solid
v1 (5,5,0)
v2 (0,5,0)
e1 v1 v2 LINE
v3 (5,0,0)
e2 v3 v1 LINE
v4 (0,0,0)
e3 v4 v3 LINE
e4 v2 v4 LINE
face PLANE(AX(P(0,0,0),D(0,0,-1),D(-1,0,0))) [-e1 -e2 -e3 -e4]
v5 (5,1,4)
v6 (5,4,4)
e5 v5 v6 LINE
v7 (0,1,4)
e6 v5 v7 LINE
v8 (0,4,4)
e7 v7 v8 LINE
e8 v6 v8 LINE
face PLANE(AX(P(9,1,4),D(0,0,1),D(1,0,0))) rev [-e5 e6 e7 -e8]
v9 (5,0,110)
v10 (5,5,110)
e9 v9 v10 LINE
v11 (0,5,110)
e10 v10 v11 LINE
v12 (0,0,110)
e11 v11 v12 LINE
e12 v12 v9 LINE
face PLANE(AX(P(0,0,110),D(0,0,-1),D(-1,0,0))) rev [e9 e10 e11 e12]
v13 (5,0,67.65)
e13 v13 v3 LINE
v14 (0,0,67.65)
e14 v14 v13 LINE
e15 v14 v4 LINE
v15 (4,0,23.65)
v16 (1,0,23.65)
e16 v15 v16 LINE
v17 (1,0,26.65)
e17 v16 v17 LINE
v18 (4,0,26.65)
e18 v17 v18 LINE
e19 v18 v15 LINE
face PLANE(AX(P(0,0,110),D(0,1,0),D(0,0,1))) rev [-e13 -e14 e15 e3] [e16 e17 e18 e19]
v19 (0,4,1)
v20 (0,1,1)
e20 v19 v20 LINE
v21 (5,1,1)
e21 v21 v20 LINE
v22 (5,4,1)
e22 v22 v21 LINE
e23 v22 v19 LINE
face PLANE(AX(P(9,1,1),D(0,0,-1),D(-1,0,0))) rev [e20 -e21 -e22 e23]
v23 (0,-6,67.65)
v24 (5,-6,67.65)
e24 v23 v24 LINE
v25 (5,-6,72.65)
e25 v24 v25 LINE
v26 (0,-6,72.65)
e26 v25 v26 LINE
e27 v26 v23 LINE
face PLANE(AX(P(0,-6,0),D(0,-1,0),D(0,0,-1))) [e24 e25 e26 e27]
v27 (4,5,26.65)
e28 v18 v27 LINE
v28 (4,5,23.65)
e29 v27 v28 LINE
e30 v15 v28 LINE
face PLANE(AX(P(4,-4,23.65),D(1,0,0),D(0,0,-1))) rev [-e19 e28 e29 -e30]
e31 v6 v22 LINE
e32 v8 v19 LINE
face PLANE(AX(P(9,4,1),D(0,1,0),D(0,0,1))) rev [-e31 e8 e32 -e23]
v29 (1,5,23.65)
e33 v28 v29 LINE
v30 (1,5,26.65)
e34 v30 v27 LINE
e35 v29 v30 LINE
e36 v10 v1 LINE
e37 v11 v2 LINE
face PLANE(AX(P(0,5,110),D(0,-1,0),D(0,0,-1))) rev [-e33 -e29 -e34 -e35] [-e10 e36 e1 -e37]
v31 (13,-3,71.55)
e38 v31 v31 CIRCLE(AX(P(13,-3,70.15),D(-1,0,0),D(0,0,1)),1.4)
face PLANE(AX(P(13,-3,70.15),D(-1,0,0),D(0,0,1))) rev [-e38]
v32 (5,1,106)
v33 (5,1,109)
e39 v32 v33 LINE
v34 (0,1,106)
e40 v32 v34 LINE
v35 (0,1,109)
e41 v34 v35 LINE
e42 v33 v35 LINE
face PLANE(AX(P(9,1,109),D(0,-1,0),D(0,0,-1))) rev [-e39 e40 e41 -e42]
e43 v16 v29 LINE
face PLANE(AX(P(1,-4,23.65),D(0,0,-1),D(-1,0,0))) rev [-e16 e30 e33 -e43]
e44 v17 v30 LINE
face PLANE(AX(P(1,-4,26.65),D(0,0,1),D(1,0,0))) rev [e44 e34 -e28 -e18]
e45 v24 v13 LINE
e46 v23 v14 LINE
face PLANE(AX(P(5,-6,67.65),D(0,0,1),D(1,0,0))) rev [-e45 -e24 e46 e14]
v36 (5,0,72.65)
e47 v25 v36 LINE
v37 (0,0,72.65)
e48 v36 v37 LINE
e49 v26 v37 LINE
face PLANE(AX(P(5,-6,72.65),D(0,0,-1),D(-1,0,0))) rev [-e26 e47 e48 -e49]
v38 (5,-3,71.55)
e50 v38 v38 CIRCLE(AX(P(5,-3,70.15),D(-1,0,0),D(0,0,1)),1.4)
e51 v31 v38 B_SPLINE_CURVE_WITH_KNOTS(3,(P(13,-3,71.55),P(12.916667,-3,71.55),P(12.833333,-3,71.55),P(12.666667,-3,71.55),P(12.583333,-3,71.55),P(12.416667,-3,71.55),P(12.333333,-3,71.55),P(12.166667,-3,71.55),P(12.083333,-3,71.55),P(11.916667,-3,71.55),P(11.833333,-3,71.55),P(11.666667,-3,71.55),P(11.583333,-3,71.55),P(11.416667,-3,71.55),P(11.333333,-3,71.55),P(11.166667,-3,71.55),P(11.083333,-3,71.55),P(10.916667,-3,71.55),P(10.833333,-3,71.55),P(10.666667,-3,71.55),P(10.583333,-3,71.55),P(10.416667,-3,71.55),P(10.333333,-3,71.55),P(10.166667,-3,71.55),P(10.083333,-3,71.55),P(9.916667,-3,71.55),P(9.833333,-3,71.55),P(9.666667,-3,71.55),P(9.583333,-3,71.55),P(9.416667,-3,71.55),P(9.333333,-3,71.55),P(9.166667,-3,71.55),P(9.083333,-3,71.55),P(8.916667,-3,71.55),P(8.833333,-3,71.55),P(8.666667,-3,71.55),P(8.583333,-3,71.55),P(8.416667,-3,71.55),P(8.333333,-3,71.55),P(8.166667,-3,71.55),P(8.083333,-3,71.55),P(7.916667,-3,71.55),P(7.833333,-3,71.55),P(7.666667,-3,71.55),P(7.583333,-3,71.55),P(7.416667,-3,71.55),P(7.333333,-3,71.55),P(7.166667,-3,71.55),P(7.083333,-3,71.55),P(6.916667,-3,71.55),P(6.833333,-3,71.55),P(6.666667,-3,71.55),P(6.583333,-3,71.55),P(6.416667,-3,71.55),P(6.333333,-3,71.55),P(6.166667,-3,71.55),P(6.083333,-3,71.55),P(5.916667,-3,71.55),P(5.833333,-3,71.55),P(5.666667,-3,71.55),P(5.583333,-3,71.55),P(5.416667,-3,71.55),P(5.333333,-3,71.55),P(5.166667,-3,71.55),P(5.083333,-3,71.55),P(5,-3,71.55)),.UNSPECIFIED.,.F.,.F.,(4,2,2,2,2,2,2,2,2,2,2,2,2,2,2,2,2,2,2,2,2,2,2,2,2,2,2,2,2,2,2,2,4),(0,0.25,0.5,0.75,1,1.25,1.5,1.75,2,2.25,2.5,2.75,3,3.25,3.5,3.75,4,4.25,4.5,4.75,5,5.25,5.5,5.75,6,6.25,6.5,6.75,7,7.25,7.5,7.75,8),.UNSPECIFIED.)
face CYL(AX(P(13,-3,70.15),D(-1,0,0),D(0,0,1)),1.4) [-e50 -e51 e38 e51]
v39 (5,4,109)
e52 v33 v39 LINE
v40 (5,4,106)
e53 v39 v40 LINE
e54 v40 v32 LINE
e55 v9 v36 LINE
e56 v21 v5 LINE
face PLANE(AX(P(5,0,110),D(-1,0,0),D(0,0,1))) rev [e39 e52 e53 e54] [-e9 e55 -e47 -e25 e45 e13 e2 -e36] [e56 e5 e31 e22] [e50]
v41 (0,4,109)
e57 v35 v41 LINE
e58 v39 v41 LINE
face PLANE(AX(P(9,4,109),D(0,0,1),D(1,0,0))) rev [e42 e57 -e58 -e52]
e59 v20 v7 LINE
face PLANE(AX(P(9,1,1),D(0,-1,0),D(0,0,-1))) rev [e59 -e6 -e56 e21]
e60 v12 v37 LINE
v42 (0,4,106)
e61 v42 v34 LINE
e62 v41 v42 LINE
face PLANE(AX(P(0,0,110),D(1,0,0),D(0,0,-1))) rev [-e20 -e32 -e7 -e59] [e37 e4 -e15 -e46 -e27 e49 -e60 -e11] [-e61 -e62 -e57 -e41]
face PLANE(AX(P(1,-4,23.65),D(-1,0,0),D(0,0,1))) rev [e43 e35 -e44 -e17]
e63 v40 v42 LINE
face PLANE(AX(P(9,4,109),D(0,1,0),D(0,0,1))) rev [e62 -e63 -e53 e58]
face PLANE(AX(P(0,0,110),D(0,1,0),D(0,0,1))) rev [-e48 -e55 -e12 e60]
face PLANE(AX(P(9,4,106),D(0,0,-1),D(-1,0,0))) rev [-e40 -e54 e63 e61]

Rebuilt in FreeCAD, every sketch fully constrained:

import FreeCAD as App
import Part
import Sketcher


def add_polygon(sketch, points):
    """Adds a closed chain of lines whose ends are joined by coincident constraints."""
    first, n = sketch.GeometryCount, len(points)
    for a, b in zip(points, points[1:] + points[:1]):
        sketch.addGeometry(Part.LineSegment(App.Vector(*a, 0), App.Vector(*b, 0)), False)
    for i in range(n):
        sketch.addConstraint(Sketcher.Constraint("Coincident", first + i, 2, first + (i + 1) % n, 1))

doc = App.newDocument("Part")
body = doc.addObject("PartDesign::Body", "Body")

sketch1 = body.newObject("Sketcher::SketchObject", "Sketch")
sketch1.AttachmentSupport = (doc.getObject("XY_Plane"), [""])
sketch1.MapMode = "FlatFace"
add_polygon(sketch1, [(0, 5), (0, 0), (5, 0), (5, 5)])
sketch1.addConstraint([
    Sketcher.Constraint("Vertical", 0),
    Sketcher.Constraint("Horizontal", 1),
    Sketcher.Constraint("Vertical", 2),
    Sketcher.Constraint("Horizontal", 3),
    Sketcher.Constraint("Coincident", 0, 2, -1, 1),
    Sketcher.Constraint("Equal", 3, 0),
    Sketcher.Constraint("DistanceX", 1, 1, 1, 2, 5.0),
])
pad1 = body.newObject("PartDesign::Pad", "Pad")
pad1.Profile = sketch1
pad1.Length = 110

sketch2 = body.newObject("Sketcher::SketchObject", "Sketch001")
sketch2.AttachmentSupport = (doc.getObject("YZ_Plane"), [""])
sketch2.MapMode = "FlatFace"
add_polygon(sketch2, [(4, 1), (1, 1), (1, 4), (4, 4)])
add_polygon(sketch2, [(4, 106), (1, 106), (1, 109), (4, 109)])
sketch2.addConstraint([
    Sketcher.Constraint("Horizontal", 0),
    Sketcher.Constraint("Vertical", 1),
    Sketcher.Constraint("Horizontal", 2),
    Sketcher.Constraint("Vertical", 3),
    Sketcher.Constraint("Horizontal", 4),
    Sketcher.Constraint("Vertical", 5),
    Sketcher.Constraint("Horizontal", 6),
    Sketcher.Constraint("Vertical", 7),
    Sketcher.Constraint("Vertical", 1, 2, 4, 2),
    Sketcher.Constraint("Vertical", 3, 2, 6, 2),
    Sketcher.Constraint("Equal", 6, 1),
    Sketcher.Constraint("Equal", 3, 5),
    Sketcher.Constraint("DistanceX", 0, 2, 0, 1, 3.0),
    Sketcher.Constraint("DistanceX", -1, 1, 0, 2, 1.0),
    Sketcher.Constraint("DistanceY", -1, 1, 0, 2, 1.0),
    Sketcher.Constraint("DistanceY", -1, 1, 4, 2, 106.0),
])
pocket1 = body.newObject("PartDesign::Pocket", "Pocket")
pocket1.Profile = sketch2
pocket1.Length = 9
pocket1.Reversed = True

sketch3 = body.newObject("Sketcher::SketchObject", "Sketch002")
sketch3.AttachmentSupport = (doc.getObject("XZ_Plane"), [""])
sketch3.MapMode = "FlatFace"
sketch3.AttachmentOffset = App.Placement(App.Vector(0, 0, -5), App.Rotation())
add_polygon(sketch3, [(1, 23.65), (1, 26.65), (4, 26.65), (4, 23.65)])
sketch3.addConstraint([
    Sketcher.Constraint("Vertical", 0),
    Sketcher.Constraint("Horizontal", 1),
    Sketcher.Constraint("Vertical", 2),
    Sketcher.Constraint("Horizontal", 3),
    Sketcher.Constraint("Equal", 3, 0),
    Sketcher.Constraint("DistanceX", 1, 1, 1, 2, 3.0),
    Sketcher.Constraint("DistanceX", -1, 1, 0, 2, 1.0),
    Sketcher.Constraint("DistanceY", -1, 1, 0, 2, 26.65),
])
pocket2 = body.newObject("PartDesign::Pocket", "Pocket001")
pocket2.Profile = sketch3
pocket2.Length = 9
pocket2.Reversed = True

sketch4 = body.newObject("Sketcher::SketchObject", "Sketch003")
sketch4.AttachmentSupport = (doc.getObject("XZ_Plane"), [""])
sketch4.MapMode = "FlatFace"
add_polygon(sketch4, [(5, 67.65), (5, 72.65), (0, 72.65), (0, 67.65)])
sketch4.addConstraint([
    Sketcher.Constraint("Vertical", 0),
    Sketcher.Constraint("Horizontal", 1),
    Sketcher.Constraint("Vertical", 2),
    Sketcher.Constraint("Horizontal", 3),
    Sketcher.Constraint("PointOnObject", 1, 2, -2),
    Sketcher.Constraint("Equal", 3, 0),
    Sketcher.Constraint("DistanceX", 1, 2, 1, 1, 5.0),
    Sketcher.Constraint("DistanceY", -1, 1, 0, 2, 72.65),
])
pad2 = body.newObject("PartDesign::Pad", "Pad001")
pad2.Profile = sketch4
pad2.Length = 6

sketch5 = body.newObject("Sketcher::SketchObject", "Sketch004")
sketch5.AttachmentSupport = (doc.getObject("YZ_Plane"), [""])
sketch5.MapMode = "FlatFace"
sketch5.addGeometry(Part.Circle(App.Vector(-3, 70.15, 0), App.Vector(0, 0, 1), 1.4), False)
sketch5.addConstraint([
    Sketcher.Constraint("Diameter", 0, 2.8),
    Sketcher.Constraint("DistanceX", 0, 3, -1, 1, 3.0),
    Sketcher.Constraint("DistanceY", -1, 1, 0, 3, 70.15),
])
pad3 = body.newObject("PartDesign::Pad", "Pad002")
pad3.Profile = sketch5
pad3.Length = 13

doc.recompute()
